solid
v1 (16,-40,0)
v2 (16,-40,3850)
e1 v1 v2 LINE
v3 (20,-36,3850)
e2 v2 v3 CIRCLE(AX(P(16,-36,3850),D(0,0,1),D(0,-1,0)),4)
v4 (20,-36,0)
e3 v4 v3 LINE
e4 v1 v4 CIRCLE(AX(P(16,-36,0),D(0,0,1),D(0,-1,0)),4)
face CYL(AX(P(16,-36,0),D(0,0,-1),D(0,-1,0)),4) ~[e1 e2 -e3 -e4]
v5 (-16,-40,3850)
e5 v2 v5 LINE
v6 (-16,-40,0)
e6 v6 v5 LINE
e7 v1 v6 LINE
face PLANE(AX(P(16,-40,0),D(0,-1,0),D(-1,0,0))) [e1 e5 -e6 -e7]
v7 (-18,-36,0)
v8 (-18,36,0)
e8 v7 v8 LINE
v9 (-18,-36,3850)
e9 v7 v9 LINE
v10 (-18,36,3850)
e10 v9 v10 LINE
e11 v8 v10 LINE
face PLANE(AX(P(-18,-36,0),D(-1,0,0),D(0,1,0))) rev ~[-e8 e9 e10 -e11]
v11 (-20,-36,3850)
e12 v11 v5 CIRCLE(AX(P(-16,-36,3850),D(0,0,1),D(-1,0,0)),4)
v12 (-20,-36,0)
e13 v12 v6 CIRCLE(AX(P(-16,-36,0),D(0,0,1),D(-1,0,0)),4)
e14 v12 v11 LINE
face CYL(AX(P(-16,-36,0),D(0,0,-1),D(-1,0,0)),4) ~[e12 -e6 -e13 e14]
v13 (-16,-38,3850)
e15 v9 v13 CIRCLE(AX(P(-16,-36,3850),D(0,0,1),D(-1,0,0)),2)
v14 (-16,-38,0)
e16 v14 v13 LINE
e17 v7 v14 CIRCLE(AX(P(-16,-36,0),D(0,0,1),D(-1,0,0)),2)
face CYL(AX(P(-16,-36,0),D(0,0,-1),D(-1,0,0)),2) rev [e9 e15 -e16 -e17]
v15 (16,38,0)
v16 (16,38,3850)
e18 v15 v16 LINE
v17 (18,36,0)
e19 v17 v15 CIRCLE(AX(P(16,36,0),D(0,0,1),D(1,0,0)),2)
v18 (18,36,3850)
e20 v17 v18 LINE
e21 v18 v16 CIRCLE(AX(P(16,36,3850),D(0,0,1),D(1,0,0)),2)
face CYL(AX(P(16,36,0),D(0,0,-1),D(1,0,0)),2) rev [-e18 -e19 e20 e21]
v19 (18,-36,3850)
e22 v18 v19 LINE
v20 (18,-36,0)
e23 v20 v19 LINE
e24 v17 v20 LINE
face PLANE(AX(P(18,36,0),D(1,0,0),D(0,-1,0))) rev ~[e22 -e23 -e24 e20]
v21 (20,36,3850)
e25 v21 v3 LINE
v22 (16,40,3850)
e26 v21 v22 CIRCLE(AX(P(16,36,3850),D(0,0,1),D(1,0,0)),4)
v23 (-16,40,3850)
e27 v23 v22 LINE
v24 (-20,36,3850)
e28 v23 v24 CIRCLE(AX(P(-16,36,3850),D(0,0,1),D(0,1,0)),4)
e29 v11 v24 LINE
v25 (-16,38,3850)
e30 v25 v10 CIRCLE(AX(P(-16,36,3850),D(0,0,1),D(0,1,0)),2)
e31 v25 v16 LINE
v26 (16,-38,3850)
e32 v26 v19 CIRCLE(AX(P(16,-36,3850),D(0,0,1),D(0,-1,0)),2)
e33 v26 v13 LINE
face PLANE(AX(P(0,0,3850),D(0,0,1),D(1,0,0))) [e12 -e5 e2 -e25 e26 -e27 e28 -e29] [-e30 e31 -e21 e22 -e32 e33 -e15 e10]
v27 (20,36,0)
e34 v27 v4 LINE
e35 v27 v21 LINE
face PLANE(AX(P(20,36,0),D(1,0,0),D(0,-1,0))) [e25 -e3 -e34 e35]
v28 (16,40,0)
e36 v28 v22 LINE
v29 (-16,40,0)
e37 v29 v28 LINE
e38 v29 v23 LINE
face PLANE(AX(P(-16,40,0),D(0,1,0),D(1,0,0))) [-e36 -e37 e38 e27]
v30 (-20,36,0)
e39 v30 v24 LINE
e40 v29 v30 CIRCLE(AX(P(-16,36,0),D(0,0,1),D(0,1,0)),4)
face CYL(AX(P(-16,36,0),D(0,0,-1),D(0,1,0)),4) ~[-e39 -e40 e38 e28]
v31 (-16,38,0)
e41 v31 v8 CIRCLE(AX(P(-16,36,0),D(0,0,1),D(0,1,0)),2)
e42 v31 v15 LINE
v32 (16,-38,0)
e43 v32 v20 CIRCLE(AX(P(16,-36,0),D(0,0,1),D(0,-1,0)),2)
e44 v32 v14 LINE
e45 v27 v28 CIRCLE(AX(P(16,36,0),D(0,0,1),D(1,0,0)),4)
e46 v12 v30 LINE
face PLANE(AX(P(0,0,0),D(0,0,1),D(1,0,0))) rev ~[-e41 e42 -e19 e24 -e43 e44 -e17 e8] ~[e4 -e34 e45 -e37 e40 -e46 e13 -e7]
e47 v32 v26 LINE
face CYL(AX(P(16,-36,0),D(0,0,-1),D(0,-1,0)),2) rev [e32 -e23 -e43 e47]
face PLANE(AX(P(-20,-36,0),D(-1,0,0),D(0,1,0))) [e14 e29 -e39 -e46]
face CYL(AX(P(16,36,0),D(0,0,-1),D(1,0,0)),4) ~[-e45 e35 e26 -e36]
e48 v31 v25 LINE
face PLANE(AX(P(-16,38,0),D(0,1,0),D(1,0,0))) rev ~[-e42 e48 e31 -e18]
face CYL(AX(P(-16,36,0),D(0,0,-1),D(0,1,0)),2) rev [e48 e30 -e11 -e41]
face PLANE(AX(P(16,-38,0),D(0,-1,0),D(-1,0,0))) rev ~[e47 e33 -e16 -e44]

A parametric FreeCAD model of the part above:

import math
import FreeCAD as App
import Part
import Sketcher

V = App.Vector
Q = App.Units.Quantity

doc = App.newDocument("Part")
body = doc.addObject("PartDesign::Body", "Body")

sketch1 = body.newObject("Sketcher::SketchObject", "Sketch")
sketch1.AttachmentSupport = (doc.getObject("XY_Plane"), [""])
sketch1.MapMode = "FlatFace"
sketch1.addGeometry(Part.LineSegment(V(-20, 36, 0), V(-20, -36, 0)), False)
sketch1.addGeometry(Part.ArcOfCircle(Part.Circle(V(-16, -36, 0), V(0, 0, 1), 4), math.radians(180), math.radians(270)), False)
sketch1.addGeometry(Part.LineSegment(V(-16, -40, 0), V(16, -40, 0)), False)
sketch1.addGeometry(Part.ArcOfCircle(Part.Circle(V(16, -36, 0), V(0, 0, 1), 4), math.radians(-90), math.radians(0)), False)
sketch1.addGeometry(Part.LineSegment(V(20, -36, 0), V(20, 36, 0)), False)
sketch1.addGeometry(Part.ArcOfCircle(Part.Circle(V(16, 36, 0), V(0, 0, 1), 4), math.radians(0), math.radians(90)), False)
sketch1.addGeometry(Part.LineSegment(V(16, 40, 0), V(-16, 40, 0)), False)
sketch1.addGeometry(Part.ArcOfCircle(Part.Circle(V(-16, 36, 0), V(0, 0, 1), 4), math.radians(90), math.radians(180)), False)
sketch1.addGeometry(Part.ArcOfCircle(Part.Circle(V(-16, 36, 0), V(0, 0, 1), 2), math.radians(90), math.radians(180)), False)
sketch1.addGeometry(Part.LineSegment(V(-16, 38, 0), V(16, 38, 0)), False)
sketch1.addGeometry(Part.ArcOfCircle(Part.Circle(V(16, 36, 0), V(0, 0, 1), 2), math.radians(0), math.radians(90)), False)
sketch1.addGeometry(Part.LineSegment(V(18, 36, 0), V(18, -36, 0)), False)
sketch1.addGeometry(Part.ArcOfCircle(Part.Circle(V(16, -36, 0), V(0, 0, 1), 2), math.radians(-90), math.radians(0)), False)
sketch1.addGeometry(Part.LineSegment(V(16, -38, 0), V(-16, -38, 0)), False)
sketch1.addGeometry(Part.ArcOfCircle(Part.Circle(V(-16, -36, 0), V(0, 0, 1), 2), math.radians(180), math.radians(270)), False)
sketch1.addGeometry(Part.LineSegment(V(-18, -36, 0), V(-18, 36, 0)), False)
sketch1.addConstraint(Sketcher.Constraint("Tangent", 0, 2, 1, 1))
sketch1.addConstraint(Sketcher.Constraint("Tangent", 1, 2, 2, 1))
sketch1.addConstraint(Sketcher.Constraint("Tangent", 2, 2, 3, 1))
sketch1.addConstraint(Sketcher.Constraint("Tangent", 3, 2, 4, 1))
sketch1.addConstraint(Sketcher.Constraint("Tangent", 4, 2, 5, 1))
sketch1.addConstraint(Sketcher.Constraint("Tangent", 5, 2, 6, 1))
sketch1.addConstraint(Sketcher.Constraint("Tangent", 6, 2, 7, 1))
sketch1.addConstraint(Sketcher.Constraint("Tangent", 7, 2, 0, 1))
sketch1.addConstraint(Sketcher.Constraint("Tangent", 8, 1, 9, 1))
sketch1.addConstraint(Sketcher.Constraint("Tangent", 9, 2, 10, 2))
sketch1.addConstraint(Sketcher.Constraint("Tangent", 10, 1, 11, 1))
sketch1.addConstraint(Sketcher.Constraint("Tangent", 11, 2, 12, 2))
sketch1.addConstraint(Sketcher.Constraint("Tangent", 12, 1, 13, 1))
sketch1.addConstraint(Sketcher.Constraint("Tangent", 13, 2, 14, 2))
sketch1.addConstraint(Sketcher.Constraint("Tangent", 14, 1, 15, 1))
sketch1.addConstraint(Sketcher.Constraint("Tangent", 15, 2, 8, 2))
sketch1.addConstraint(Sketcher.Constraint("Vertical", 0))
sketch1.addConstraint(Sketcher.Constraint("Horizontal", 2))
sketch1.addConstraint(Sketcher.Constraint("Vertical", 4))
sketch1.addConstraint(Sketcher.Constraint("Horizontal", 6))
sketch1.addConstraint(Sketcher.Constraint("Horizontal", 9))
sketch1.addConstraint(Sketcher.Constraint("Vertical", 11))
sketch1.addConstraint(Sketcher.Constraint("Horizontal", 13))
sketch1.addConstraint(Sketcher.Constraint("Vertical", 15))
sketch1.addConstraint(Sketcher.Constraint("Coincident", 8, 3, 7, 3))
sketch1.addConstraint(Sketcher.Constraint("Coincident", 10, 3, 5, 3))
sketch1.addConstraint(Sketcher.Constraint("Coincident", 12, 3, 3, 3))
sketch1.addConstraint(Sketcher.Constraint("Equal", 1, 3))
sketch1.addConstraint(Sketcher.Constraint("Equal", 3, 5))
sketch1.addConstraint(Sketcher.Constraint("Equal", 5, 7))
sketch1.addConstraint(Sketcher.Constraint("Equal", 12, 14))
sketch1.addConstraint(Sketcher.Constraint("Symmetric", 1, 3, 5, 3, -1, 1))
sketch1.addConstraint(Sketcher.Constraint("Radius", 1, Q("4 mm")))
sketch1.addConstraint(Sketcher.Constraint("Radius", 8, Q("2 mm")))
sketch1.addConstraint(Sketcher.Constraint("DistanceX", 0, 2, -1, 1, Q("20 mm")))
sketch1.addConstraint(Sketcher.Constraint("DistanceY", 1, 2, -1, 1, Q("40 mm")))
pad1 = body.newObject("PartDesign::Pad", "Pad")
pad1.Profile = sketch1
pad1.Length = 3850

doc.recompute()
